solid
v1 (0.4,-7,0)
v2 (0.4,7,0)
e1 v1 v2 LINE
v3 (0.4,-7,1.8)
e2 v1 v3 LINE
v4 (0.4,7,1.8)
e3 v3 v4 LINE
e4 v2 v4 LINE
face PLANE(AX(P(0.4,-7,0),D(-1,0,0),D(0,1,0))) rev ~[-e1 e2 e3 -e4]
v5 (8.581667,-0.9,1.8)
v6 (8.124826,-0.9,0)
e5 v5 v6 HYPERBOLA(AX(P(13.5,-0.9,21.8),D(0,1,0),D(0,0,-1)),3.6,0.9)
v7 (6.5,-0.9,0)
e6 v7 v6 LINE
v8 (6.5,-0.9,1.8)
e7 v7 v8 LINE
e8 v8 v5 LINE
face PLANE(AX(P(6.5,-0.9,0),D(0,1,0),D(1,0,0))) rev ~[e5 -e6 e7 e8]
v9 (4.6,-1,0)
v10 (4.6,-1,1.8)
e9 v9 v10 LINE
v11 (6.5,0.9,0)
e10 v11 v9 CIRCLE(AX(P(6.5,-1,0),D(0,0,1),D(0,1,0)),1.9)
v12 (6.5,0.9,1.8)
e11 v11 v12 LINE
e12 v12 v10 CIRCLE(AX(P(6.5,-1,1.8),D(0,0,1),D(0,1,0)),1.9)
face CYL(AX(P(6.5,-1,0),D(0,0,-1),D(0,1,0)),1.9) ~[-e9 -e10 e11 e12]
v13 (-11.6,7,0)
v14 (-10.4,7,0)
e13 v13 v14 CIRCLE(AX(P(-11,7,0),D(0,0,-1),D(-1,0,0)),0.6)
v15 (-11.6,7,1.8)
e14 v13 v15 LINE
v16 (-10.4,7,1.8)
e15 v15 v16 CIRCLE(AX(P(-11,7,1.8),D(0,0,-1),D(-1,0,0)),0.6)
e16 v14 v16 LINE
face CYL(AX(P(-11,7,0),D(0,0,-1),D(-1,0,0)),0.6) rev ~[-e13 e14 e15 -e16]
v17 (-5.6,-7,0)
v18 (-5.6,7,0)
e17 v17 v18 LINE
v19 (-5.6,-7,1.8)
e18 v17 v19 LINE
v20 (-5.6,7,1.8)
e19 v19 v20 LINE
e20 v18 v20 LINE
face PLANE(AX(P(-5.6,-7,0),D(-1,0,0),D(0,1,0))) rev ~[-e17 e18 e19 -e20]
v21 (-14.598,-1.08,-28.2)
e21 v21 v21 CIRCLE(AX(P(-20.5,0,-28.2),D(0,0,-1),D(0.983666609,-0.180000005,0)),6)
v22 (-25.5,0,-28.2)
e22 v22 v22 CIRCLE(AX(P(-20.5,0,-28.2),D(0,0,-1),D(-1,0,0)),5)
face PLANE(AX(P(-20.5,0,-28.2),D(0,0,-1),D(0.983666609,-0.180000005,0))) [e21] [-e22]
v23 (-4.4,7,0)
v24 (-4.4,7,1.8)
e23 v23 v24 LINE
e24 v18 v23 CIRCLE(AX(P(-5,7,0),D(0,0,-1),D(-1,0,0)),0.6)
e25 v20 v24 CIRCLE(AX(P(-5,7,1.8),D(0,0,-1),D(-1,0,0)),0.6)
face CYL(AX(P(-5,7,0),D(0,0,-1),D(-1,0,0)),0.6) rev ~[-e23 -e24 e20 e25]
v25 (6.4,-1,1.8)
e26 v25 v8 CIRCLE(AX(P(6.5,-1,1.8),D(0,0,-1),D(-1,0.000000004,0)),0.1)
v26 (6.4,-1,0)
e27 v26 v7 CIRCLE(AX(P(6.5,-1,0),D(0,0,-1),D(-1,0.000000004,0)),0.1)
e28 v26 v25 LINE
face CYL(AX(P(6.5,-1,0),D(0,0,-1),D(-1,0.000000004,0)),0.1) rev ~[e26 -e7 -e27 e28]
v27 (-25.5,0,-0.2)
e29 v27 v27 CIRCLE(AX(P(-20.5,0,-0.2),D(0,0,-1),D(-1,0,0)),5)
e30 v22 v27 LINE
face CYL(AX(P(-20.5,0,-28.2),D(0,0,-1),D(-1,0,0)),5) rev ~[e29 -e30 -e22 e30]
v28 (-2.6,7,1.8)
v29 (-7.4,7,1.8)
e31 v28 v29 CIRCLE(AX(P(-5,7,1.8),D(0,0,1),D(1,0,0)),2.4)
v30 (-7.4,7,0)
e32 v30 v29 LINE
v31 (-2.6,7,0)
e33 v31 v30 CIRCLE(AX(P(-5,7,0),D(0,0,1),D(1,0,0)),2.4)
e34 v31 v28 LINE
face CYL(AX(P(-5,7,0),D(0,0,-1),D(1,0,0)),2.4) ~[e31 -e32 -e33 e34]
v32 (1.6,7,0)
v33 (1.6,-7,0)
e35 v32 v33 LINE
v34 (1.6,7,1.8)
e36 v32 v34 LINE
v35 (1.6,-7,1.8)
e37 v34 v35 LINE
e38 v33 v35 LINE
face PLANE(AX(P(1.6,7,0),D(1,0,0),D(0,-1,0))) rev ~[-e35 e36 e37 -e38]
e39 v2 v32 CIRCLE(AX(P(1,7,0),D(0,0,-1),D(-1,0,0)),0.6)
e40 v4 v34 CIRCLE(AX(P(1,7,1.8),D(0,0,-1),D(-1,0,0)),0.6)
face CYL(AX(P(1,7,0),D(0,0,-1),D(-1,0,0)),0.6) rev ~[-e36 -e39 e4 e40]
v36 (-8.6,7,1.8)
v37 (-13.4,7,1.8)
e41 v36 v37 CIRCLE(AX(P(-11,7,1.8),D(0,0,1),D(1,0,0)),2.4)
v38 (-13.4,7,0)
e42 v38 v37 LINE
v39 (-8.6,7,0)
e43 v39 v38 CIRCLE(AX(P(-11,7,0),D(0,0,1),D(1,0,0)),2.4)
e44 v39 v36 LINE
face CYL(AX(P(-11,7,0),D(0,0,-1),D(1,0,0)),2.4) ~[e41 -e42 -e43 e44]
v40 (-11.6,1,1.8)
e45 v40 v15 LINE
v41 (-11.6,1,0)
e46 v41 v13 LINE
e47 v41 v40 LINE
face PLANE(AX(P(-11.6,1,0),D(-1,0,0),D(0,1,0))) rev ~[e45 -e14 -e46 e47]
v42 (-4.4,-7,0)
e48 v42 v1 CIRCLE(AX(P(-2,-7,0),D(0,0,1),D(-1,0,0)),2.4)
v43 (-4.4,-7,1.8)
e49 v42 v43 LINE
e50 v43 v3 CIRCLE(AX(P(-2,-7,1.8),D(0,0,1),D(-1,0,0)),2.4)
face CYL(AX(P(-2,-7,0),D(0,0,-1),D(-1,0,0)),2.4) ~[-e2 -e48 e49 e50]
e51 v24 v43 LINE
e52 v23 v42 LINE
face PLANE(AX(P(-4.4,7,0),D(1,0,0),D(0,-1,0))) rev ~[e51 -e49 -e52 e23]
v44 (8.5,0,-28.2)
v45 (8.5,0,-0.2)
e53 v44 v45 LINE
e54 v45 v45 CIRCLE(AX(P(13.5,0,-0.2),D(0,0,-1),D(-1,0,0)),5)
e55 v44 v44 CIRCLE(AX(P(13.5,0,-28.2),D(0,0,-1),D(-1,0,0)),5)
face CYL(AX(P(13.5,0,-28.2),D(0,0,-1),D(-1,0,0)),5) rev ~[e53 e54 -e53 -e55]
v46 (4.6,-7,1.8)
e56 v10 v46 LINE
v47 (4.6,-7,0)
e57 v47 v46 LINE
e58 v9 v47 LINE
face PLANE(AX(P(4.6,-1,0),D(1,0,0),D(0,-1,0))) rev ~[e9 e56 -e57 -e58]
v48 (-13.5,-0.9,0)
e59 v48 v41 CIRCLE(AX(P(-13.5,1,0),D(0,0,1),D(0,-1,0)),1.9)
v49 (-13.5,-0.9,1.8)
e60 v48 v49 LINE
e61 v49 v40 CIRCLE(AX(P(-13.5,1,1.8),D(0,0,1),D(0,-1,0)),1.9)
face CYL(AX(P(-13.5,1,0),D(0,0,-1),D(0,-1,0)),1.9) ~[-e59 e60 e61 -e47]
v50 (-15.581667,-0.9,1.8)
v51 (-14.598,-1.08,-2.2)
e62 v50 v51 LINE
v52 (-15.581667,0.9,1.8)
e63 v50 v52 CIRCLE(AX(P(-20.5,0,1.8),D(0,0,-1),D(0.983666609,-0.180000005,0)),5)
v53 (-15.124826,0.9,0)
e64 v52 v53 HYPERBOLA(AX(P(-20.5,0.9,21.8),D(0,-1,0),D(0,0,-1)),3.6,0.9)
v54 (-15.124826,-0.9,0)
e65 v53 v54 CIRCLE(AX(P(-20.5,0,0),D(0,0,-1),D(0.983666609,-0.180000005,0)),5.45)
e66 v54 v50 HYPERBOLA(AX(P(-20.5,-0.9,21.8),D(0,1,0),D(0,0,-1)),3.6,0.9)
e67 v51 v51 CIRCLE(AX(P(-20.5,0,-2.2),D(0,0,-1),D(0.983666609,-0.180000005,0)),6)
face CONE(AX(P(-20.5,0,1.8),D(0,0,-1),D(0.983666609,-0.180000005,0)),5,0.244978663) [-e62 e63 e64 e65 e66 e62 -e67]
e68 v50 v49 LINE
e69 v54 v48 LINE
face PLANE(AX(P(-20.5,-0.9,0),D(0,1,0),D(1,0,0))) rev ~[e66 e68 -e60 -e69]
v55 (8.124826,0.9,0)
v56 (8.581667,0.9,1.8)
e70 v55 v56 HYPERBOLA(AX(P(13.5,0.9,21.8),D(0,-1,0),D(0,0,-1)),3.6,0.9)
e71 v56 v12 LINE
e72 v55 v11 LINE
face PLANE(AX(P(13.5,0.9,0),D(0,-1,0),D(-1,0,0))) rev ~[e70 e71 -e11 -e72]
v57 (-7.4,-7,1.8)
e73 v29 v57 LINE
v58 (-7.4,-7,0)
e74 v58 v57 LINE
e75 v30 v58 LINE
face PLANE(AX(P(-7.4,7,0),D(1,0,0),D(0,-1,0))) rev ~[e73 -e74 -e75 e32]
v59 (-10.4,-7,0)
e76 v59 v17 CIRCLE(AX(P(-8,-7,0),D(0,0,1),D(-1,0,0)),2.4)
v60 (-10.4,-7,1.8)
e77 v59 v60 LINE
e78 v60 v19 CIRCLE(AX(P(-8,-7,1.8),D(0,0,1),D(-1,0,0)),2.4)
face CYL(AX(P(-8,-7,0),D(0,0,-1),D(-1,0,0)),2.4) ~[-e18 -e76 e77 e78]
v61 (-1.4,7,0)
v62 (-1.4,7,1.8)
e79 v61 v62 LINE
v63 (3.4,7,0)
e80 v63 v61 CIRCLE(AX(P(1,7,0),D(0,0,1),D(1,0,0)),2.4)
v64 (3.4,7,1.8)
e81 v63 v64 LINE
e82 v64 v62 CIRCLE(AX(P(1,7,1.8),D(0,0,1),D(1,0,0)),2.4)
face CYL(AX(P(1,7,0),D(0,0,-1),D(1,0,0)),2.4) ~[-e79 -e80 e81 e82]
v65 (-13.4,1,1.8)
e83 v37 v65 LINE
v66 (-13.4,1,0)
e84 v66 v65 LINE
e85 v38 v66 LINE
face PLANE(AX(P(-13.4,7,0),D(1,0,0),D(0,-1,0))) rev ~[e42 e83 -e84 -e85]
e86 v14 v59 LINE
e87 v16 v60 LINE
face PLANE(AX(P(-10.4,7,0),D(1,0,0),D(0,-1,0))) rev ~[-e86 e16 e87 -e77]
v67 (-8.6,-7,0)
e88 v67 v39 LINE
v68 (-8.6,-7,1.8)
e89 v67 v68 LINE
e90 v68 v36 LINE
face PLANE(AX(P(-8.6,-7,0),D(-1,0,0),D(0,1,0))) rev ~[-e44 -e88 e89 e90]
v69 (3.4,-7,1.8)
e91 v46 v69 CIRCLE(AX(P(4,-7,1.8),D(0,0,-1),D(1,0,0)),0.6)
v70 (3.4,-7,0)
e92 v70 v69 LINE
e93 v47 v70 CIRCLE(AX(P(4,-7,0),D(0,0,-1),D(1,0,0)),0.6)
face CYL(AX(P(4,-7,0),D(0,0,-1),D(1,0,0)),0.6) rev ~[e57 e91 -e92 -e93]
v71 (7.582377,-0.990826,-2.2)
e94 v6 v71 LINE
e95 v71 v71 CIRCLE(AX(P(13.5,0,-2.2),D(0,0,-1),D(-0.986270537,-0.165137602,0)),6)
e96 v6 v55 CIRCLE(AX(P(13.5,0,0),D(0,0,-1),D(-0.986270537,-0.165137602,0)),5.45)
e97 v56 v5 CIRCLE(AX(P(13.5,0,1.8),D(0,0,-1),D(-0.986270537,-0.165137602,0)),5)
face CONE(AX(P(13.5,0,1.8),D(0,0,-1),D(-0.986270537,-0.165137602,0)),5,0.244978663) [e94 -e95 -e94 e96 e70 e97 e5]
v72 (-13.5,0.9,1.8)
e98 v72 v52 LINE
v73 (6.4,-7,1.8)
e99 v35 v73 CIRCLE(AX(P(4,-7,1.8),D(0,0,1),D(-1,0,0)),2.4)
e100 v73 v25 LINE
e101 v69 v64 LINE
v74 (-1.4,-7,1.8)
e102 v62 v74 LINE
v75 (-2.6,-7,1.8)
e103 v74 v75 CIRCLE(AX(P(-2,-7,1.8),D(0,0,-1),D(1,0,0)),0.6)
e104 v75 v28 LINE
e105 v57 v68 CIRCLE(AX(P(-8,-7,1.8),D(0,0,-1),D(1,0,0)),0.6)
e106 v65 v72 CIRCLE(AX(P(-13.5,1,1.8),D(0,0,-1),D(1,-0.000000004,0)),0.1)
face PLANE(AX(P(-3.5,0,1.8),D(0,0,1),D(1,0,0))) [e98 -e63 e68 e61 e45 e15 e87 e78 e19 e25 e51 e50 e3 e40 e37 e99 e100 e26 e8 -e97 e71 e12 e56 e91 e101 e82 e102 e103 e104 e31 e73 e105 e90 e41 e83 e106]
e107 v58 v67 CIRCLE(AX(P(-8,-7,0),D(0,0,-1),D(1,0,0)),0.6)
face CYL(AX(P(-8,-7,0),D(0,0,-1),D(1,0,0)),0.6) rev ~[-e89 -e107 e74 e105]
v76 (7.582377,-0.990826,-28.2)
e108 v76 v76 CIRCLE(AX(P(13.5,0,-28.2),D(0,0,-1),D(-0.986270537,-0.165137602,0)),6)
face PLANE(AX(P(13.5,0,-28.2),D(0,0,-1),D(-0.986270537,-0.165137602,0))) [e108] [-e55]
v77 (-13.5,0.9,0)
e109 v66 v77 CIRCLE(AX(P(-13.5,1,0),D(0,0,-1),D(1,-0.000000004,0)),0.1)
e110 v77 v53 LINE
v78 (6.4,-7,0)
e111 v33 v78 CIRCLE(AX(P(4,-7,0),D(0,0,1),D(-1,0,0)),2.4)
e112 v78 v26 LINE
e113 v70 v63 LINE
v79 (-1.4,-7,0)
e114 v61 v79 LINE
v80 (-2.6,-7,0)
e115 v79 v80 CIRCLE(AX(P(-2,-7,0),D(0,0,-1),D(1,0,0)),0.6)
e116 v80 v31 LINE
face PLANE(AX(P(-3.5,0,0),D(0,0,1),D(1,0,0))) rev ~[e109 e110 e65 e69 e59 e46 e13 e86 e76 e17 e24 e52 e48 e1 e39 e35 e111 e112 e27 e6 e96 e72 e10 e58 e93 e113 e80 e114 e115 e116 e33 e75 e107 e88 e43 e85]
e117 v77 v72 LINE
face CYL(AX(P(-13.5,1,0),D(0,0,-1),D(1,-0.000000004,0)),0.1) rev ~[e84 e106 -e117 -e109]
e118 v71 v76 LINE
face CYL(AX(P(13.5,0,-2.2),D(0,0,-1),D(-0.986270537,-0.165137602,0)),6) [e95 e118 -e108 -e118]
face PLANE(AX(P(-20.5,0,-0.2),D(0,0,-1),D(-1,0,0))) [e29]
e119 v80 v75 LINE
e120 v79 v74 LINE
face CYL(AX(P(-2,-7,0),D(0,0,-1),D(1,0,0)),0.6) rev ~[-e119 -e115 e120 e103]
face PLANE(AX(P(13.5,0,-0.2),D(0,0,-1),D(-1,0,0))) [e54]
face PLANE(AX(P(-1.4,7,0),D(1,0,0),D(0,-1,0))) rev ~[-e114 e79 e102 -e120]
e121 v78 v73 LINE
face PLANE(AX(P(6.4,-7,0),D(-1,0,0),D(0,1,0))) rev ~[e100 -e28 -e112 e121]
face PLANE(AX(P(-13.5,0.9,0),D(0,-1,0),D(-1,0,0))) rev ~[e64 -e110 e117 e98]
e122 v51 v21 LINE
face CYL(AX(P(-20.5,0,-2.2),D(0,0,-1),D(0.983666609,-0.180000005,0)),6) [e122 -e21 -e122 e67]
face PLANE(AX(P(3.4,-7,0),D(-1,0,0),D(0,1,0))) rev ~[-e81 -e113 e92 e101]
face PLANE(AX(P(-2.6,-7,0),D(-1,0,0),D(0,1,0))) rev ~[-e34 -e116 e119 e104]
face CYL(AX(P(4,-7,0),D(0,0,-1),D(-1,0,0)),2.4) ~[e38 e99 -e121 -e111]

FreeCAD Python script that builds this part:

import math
import FreeCAD as App
import Part
import Sketcher
Q = App.Units.Quantity


def add_polygon(sketch, points):
    """Adds a closed chain of lines whose ends are joined by coincident constraints."""
    first, n = sketch.GeometryCount, len(points)
    for a, b in zip(points, points[1:] + points[:1]):
        sketch.addGeometry(Part.LineSegment(App.Vector(*a, 0), App.Vector(*b, 0)), False)
    for i in range(n):
        sketch.addConstraint(Sketcher.Constraint("Coincident", first + i, 2, first + (i + 1) % n, 1))

doc = App.newDocument("Part")
body = doc.addObject("PartDesign::Body", "Body")

# Sketch on XY plane
sketch1 = body.newObject("Sketcher::SketchObject", "Sketch")
sketch1.AttachmentSupport = (doc.getObject("XY_Plane"), [""])
sketch1.MapMode = "FlatFace"
sketch1.addGeometry([
    Part.LineSegment(App.Vector(-20.5, -0.9, 0), App.Vector(-13.5, -0.9, 0)),  # 0
    Part.ArcOfCircle(Part.Circle(App.Vector(-13.5, 1, 0), App.Vector(0, 0, 1), 1.9), math.radians(-90), math.radians(0)),  # 1
    Part.LineSegment(App.Vector(-11.6, 1, 0), App.Vector(-11.6, 7, 0)),  # 2
    Part.ArcOfCircle(Part.Circle(App.Vector(-11, 7, 0), App.Vector(0, 0, 1), 0.6), math.radians(0), math.radians(180)),  # 3
    Part.LineSegment(App.Vector(-10.4, 7, 0), App.Vector(-10.4, -7, 0)),  # 4
    Part.ArcOfCircle(Part.Circle(App.Vector(-8, -7, 0), App.Vector(0, 0, 1), 2.4), math.radians(180), math.radians(360)),  # 5
    Part.LineSegment(App.Vector(-5.6, -7, 0), App.Vector(-5.6, 7, 0)),  # 6
    Part.ArcOfCircle(Part.Circle(App.Vector(-5, 7, 0), App.Vector(0, 0, 1), 0.6), math.radians(0), math.radians(180)),  # 7
    Part.LineSegment(App.Vector(-4.4, 7, 0), App.Vector(-4.4, -7, 0)),  # 8
    Part.ArcOfCircle(Part.Circle(App.Vector(-2, -7, 0), App.Vector(0, 0, 1), 2.4), math.radians(180), math.radians(360)),  # 9
    Part.LineSegment(App.Vector(0.4, -7, 0), App.Vector(0.4, 7, 0)),  # 10
    Part.ArcOfCircle(Part.Circle(App.Vector(1, 7, 0), App.Vector(0, 0, 1), 0.6), math.radians(0), math.radians(180)),  # 11
    Part.LineSegment(App.Vector(1.6, 7, 0), App.Vector(1.6, -7, 0)),  # 12
    Part.ArcOfCircle(Part.Circle(App.Vector(4, -7, 0), App.Vector(0, 0, 1), 2.4), math.radians(180), math.radians(360)),  # 13
    Part.LineSegment(App.Vector(6.4, -7, 0), App.Vector(6.4, -1, 0)),  # 14
    Part.ArcOfCircle(Part.Circle(App.Vector(6.5, -1, 0), App.Vector(0, 0, 1), 0.1), math.radians(90), math.radians(180)),  # 15
    Part.LineSegment(App.Vector(6.5, -0.9, 0), App.Vector(13.5, -0.9, 0)),  # 16
    Part.ArcOfCircle(Part.Circle(App.Vector(13.5, 0, 0), App.Vector(0, 0, 1), 0.9), math.radians(-90), math.radians(90)),  # 17
    Part.LineSegment(App.Vector(13.5, 0.9, 0), App.Vector(6.5, 0.9, 0)),  # 18
    Part.ArcOfCircle(Part.Circle(App.Vector(6.5, -1, 0), App.Vector(0, 0, 1), 1.9), math.radians(90), math.radians(180)),  # 19
    Part.LineSegment(App.Vector(4.6, -1, 0), App.Vector(4.6, -7, 0)),  # 20
    Part.ArcOfCircle(Part.Circle(App.Vector(4, -7, 0), App.Vector(0, 0, 1), 0.6), math.radians(180), math.radians(360)),  # 21
    Part.LineSegment(App.Vector(3.4, -7, 0), App.Vector(3.4, 7, 0)),  # 22
    Part.ArcOfCircle(Part.Circle(App.Vector(1, 7, 0), App.Vector(0, 0, 1), 2.4), math.radians(0), math.radians(180)),  # 23
    Part.LineSegment(App.Vector(-1.4, 7, 0), App.Vector(-1.4, -7, 0)),  # 24
    Part.ArcOfCircle(Part.Circle(App.Vector(-2, -7, 0), App.Vector(0, 0, 1), 0.6), math.radians(180), math.radians(360)),  # 25
    Part.LineSegment(App.Vector(-2.6, -7, 0), App.Vector(-2.6, 7, 0)),  # 26
    Part.ArcOfCircle(Part.Circle(App.Vector(-5, 7, 0), App.Vector(0, 0, 1), 2.4), math.radians(0), math.radians(180)),  # 27
    Part.LineSegment(App.Vector(-7.4, 7, 0), App.Vector(-7.4, -7, 0)),  # 28
    Part.ArcOfCircle(Part.Circle(App.Vector(-8, -7, 0), App.Vector(0, 0, 1), 0.6), math.radians(180), math.radians(360)),  # 29
    Part.LineSegment(App.Vector(-8.6, -7, 0), App.Vector(-8.6, 7, 0)),  # 30
    Part.ArcOfCircle(Part.Circle(App.Vector(-11, 7, 0), App.Vector(0, 0, 1), 2.4), math.radians(0), math.radians(180)),  # 31
    Part.LineSegment(App.Vector(-13.4, 7, 0), App.Vector(-13.4, 1, 0)),  # 32
    Part.ArcOfCircle(Part.Circle(App.Vector(-13.5, 1, 0), App.Vector(0, 0, 1), 0.1), math.radians(-90), math.radians(0)),  # 33
    Part.LineSegment(App.Vector(-13.5, 0.9, 0), App.Vector(-20.5, 0.9, 0)),  # 34
    Part.ArcOfCircle(Part.Circle(App.Vector(-20.5, 0, 0), App.Vector(0, 0, 1), 0.9), math.radians(90), math.radians(270)),  # 35
], False)
sketch1.addConstraint([
    Sketcher.Constraint("Tangent", 0, 2, 1, 1),
    Sketcher.Constraint("Tangent", 1, 2, 2, 1),
    Sketcher.Constraint("Tangent", 2, 2, 3, 2),
    Sketcher.Constraint("Tangent", 3, 1, 4, 1),
    Sketcher.Constraint("Tangent", 4, 2, 5, 1),
    Sketcher.Constraint("Tangent", 5, 2, 6, 1),
    Sketcher.Constraint("Tangent", 6, 2, 7, 2),
    Sketcher.Constraint("Tangent", 7, 1, 8, 1),
    Sketcher.Constraint("Tangent", 8, 2, 9, 1),
    Sketcher.Constraint("Tangent", 9, 2, 10, 1),
    Sketcher.Constraint("Tangent", 10, 2, 11, 2),
    Sketcher.Constraint("Tangent", 11, 1, 12, 1),
    Sketcher.Constraint("Tangent", 12, 2, 13, 1),
    Sketcher.Constraint("Tangent", 13, 2, 14, 1),
    Sketcher.Constraint("Tangent", 14, 2, 15, 2),
    Sketcher.Constraint("Tangent", 15, 1, 16, 1),
    Sketcher.Constraint("Tangent", 16, 2, 17, 1),
    Sketcher.Constraint("Tangent", 17, 2, 18, 1),
    Sketcher.Constraint("Tangent", 18, 2, 19, 1),
    Sketcher.Constraint("Tangent", 19, 2, 20, 1),
    Sketcher.Constraint("Tangent", 20, 2, 21, 2),
    Sketcher.Constraint("Tangent", 21, 1, 22, 1),
    Sketcher.Constraint("Tangent", 22, 2, 23, 1),
    Sketcher.Constraint("Tangent", 23, 2, 24, 1),
    Sketcher.Constraint("Tangent", 24, 2, 25, 2),
    Sketcher.Constraint("Tangent", 25, 1, 26, 1),
    Sketcher.Constraint("Tangent", 26, 2, 27, 1),
    Sketcher.Constraint("Tangent", 27, 2, 28, 1),
    Sketcher.Constraint("Tangent", 28, 2, 29, 2),
    Sketcher.Constraint("Tangent", 29, 1, 30, 1),
    Sketcher.Constraint("Tangent", 30, 2, 31, 1),
    Sketcher.Constraint("Tangent", 31, 2, 32, 1),
    Sketcher.Constraint("Tangent", 32, 2, 33, 2),
    Sketcher.Constraint("Tangent", 33, 1, 34, 1),
    Sketcher.Constraint("Tangent", 34, 2, 35, 1),
    Sketcher.Constraint("Tangent", 35, 2, 0, 1),
    Sketcher.Constraint("Horizontal", 0),
    Sketcher.Constraint("Vertical", 2),
    Sketcher.Constraint("Vertical", 4),
    Sketcher.Constraint("Vertical", 6),
    Sketcher.Constraint("Vertical", 8),
    Sketcher.Constraint("Vertical", 10),
    Sketcher.Constraint("Vertical", 12),
    Sketcher.Constraint("Vertical", 14),
    Sketcher.Constraint("Horizontal", 16),
    Sketcher.Constraint("Horizontal", 18),
    Sketcher.Constraint("Vertical", 20),
    Sketcher.Constraint("Vertical", 22),
    Sketcher.Constraint("Vertical", 24),
    Sketcher.Constraint("Vertical", 26),
    Sketcher.Constraint("Vertical", 28),
    Sketcher.Constraint("Vertical", 30),
    Sketcher.Constraint("Vertical", 32),
    Sketcher.Constraint("Horizontal", 34),
    Sketcher.Constraint("Coincident", 19, 3, 15, 3),
    Sketcher.Constraint("Coincident", 21, 3, 13, 3),
    Sketcher.Constraint("Coincident", 23, 3, 11, 3),
    Sketcher.Constraint("Coincident", 25, 3, 9, 3),
    Sketcher.Constraint("Coincident", 27, 3, 7, 3),
    Sketcher.Constraint("Coincident", 29, 3, 5, 3),
    Sketcher.Constraint("Coincident", 31, 3, 3, 3),
    Sketcher.Constraint("Coincident", 33, 3, 1, 3),
    Sketcher.Constraint("Equal", 3, 7),
    Sketcher.Constraint("Equal", 5, 9),
    Sketcher.Constraint("Equal", 7, 11),
    Sketcher.Constraint("Equal", 9, 13),
    Sketcher.Constraint("Equal", 1, 19),
    Sketcher.Constraint("Equal", 11, 21),
    Sketcher.Constraint("Symmetric", 0, 2, 17, 2, -1, 1),
    Sketcher.Constraint("PointOnObject", 17, 3, -1),
    Sketcher.Constraint("Horizontal", 3, 3, 7, 3),
    Sketcher.Constraint("Horizontal", 5, 3, 9, 3),
    Sketcher.Constraint("Horizontal", 7, 3, 11, 3),
    Sketcher.Constraint("Horizontal", 9, 3, 13, 3),
    Sketcher.Constraint("Equal", 0, 16),
    Sketcher.Constraint("Equal", 2, 14),
    Sketcher.Constraint("Radius", 1, Q("1.9 mm")),
    Sketcher.Constraint("Radius", 3, Q("0.6 mm")),
    Sketcher.Constraint("Radius", 5, Q("2.4 mm")),
    Sketcher.Constraint("DistanceX", 0, 1, 0, 2, Q("7 mm")),
    Sketcher.Constraint("DistanceY", 2, 1, 2, 2, Q("6 mm")),
])
pad1 = body.newObject("PartDesign::Pad", "Pad")
pad1.Profile = sketch1
pad1.Length = 1.8

# Sketch on XZ plane
sketch2 = body.newObject("Sketcher::SketchObject", "Sketch001")
sketch2.AttachmentSupport = (doc.getObject("XZ_Plane"), [""])
sketch2.MapMode = "FlatFace"
add_polygon(sketch2, [(-25.5, 1.8), (-20.5, 1.8), (-20.5, -28.2), (-26.5, -28.2), (-26.5, -2.2)])  # lines 0-4
sketch2.addGeometry(Part.LineSegment(App.Vector(-20.5, 1.8, 0), App.Vector(-20.5, -28.2, 0)), True)  # axis
sketch2.addConstraint([
    Sketcher.Constraint("Horizontal", 0),
    Sketcher.Constraint("Vertical", 1),
    Sketcher.Constraint("Horizontal", 2),
    Sketcher.Constraint("Vertical", 3),
    Sketcher.Constraint("Vertical", 5),
    Sketcher.Constraint("Coincident", 5, 1, 0, 2),
    Sketcher.Constraint("Horizontal", 2, 2, 5, 2),
    Sketcher.Constraint("DistanceX", 0, 1, 0, 2, Q("5 mm")),
    Sketcher.Constraint("DistanceX", 2, 2, 2, 1, Q("6 mm")),
    Sketcher.Constraint("DistanceY", 1, 2, 1, 1, Q("30 mm")),
    Sketcher.Constraint("DistanceY", 3, 1, 3, 2, Q("26 mm")),
    Sketcher.Constraint("DistanceX", 0, 2, -1, 1, Q("20.5 mm")),
    Sketcher.Constraint("DistanceY", -1, 1, 0, 2, Q("1.8 mm")),
])
revolution = body.newObject("PartDesign::Revolution", "Revolution")
revolution.Profile = sketch2
revolution.ReferenceAxis = (sketch2, ["Axis0"])
revolution.Angle = 360

# Sketch on XZ plane
sketch3 = body.newObject("Sketcher::SketchObject", "Sketch002")
sketch3.AttachmentSupport = (doc.getObject("XZ_Plane"), [""])
sketch3.MapMode = "FlatFace"
add_polygon(sketch3, [(13.5, 1.8), (18.5, 1.8), (19.5, -2.2), (19.5, -28.2), (13.5, -28.2)])  # lines 0-4
sketch3.addGeometry(Part.LineSegment(App.Vector(13.5, 1.8, 0), App.Vector(13.5, -28.2, 0)), True)  # axis
sketch3.addConstraint([
    Sketcher.Constraint("Horizontal", 0),
    Sketcher.Constraint("Vertical", 2),
    Sketcher.Constraint("Horizontal", 3),
    Sketcher.Constraint("Vertical", 4),
    Sketcher.Constraint("Vertical", 5),
    Sketcher.Constraint("Coincident", 5, 1, 4, 2),
    Sketcher.Constraint("Horizontal", 2, 2, 5, 2),
    Sketcher.Constraint("DistanceX", 0, 1, 0, 2, Q("5 mm")),
    Sketcher.Constraint("DistanceX", 3, 2, 3, 1, Q("6 mm")),
    Sketcher.Constraint("DistanceY", 2, 2, 2, 1, Q("26 mm")),
    Sketcher.Constraint("DistanceY", 4, 1, 4, 2, Q("30 mm")),
    Sketcher.Constraint("DistanceX", -1, 1, 0, 2, Q("18.5 mm")),
    Sketcher.Constraint("DistanceY", -1, 1, 0, 2, Q("1.8 mm")),
])
revolution2 = body.newObject("PartDesign::Revolution", "Revolution001")
revolution2.Profile = sketch3
revolution2.ReferenceAxis = (sketch3, ["Axis0"])
revolution2.Angle = 360

# Sketch on XY plane
sketch4 = body.newObject("Sketcher::SketchObject", "Sketch003")
sketch4.AttachmentSupport = (doc.getObject("XY_Plane"), [""])
sketch4.MapMode = "FlatFace"
sketch4.AttachmentOffset = App.Placement(App.Vector(0, 0, -28.2), App.Rotation())
sketch4.addGeometry([
    Part.Circle(App.Vector(13.5, 0, 0), App.Vector(0, 0, 1), 5),
    Part.Circle(App.Vector(-20.5, 0, 0), App.Vector(0, 0, 1), 5),
], False)
sketch4.addConstraint([
    Sketcher.Constraint("Equal", 0, 1),
    Sketcher.Constraint("PointOnObject", 0, 3, -1),
    Sketcher.Constraint("PointOnObject", 1, 3, -1),
    Sketcher.Constraint("Diameter", 0, Q("10 mm")),
    Sketcher.Constraint("DistanceX", 1, 3, 0, 3, Q("34 mm")),
    Sketcher.Constraint("DistanceX", -1, 1, 0, 3, Q("13.5 mm")),
])
pocket1 = body.newObject("PartDesign::Pocket", "Pocket")
pocket1.Profile = sketch4
pocket1.Length = 28
pocket1.Reversed = True

doc.recompute()
